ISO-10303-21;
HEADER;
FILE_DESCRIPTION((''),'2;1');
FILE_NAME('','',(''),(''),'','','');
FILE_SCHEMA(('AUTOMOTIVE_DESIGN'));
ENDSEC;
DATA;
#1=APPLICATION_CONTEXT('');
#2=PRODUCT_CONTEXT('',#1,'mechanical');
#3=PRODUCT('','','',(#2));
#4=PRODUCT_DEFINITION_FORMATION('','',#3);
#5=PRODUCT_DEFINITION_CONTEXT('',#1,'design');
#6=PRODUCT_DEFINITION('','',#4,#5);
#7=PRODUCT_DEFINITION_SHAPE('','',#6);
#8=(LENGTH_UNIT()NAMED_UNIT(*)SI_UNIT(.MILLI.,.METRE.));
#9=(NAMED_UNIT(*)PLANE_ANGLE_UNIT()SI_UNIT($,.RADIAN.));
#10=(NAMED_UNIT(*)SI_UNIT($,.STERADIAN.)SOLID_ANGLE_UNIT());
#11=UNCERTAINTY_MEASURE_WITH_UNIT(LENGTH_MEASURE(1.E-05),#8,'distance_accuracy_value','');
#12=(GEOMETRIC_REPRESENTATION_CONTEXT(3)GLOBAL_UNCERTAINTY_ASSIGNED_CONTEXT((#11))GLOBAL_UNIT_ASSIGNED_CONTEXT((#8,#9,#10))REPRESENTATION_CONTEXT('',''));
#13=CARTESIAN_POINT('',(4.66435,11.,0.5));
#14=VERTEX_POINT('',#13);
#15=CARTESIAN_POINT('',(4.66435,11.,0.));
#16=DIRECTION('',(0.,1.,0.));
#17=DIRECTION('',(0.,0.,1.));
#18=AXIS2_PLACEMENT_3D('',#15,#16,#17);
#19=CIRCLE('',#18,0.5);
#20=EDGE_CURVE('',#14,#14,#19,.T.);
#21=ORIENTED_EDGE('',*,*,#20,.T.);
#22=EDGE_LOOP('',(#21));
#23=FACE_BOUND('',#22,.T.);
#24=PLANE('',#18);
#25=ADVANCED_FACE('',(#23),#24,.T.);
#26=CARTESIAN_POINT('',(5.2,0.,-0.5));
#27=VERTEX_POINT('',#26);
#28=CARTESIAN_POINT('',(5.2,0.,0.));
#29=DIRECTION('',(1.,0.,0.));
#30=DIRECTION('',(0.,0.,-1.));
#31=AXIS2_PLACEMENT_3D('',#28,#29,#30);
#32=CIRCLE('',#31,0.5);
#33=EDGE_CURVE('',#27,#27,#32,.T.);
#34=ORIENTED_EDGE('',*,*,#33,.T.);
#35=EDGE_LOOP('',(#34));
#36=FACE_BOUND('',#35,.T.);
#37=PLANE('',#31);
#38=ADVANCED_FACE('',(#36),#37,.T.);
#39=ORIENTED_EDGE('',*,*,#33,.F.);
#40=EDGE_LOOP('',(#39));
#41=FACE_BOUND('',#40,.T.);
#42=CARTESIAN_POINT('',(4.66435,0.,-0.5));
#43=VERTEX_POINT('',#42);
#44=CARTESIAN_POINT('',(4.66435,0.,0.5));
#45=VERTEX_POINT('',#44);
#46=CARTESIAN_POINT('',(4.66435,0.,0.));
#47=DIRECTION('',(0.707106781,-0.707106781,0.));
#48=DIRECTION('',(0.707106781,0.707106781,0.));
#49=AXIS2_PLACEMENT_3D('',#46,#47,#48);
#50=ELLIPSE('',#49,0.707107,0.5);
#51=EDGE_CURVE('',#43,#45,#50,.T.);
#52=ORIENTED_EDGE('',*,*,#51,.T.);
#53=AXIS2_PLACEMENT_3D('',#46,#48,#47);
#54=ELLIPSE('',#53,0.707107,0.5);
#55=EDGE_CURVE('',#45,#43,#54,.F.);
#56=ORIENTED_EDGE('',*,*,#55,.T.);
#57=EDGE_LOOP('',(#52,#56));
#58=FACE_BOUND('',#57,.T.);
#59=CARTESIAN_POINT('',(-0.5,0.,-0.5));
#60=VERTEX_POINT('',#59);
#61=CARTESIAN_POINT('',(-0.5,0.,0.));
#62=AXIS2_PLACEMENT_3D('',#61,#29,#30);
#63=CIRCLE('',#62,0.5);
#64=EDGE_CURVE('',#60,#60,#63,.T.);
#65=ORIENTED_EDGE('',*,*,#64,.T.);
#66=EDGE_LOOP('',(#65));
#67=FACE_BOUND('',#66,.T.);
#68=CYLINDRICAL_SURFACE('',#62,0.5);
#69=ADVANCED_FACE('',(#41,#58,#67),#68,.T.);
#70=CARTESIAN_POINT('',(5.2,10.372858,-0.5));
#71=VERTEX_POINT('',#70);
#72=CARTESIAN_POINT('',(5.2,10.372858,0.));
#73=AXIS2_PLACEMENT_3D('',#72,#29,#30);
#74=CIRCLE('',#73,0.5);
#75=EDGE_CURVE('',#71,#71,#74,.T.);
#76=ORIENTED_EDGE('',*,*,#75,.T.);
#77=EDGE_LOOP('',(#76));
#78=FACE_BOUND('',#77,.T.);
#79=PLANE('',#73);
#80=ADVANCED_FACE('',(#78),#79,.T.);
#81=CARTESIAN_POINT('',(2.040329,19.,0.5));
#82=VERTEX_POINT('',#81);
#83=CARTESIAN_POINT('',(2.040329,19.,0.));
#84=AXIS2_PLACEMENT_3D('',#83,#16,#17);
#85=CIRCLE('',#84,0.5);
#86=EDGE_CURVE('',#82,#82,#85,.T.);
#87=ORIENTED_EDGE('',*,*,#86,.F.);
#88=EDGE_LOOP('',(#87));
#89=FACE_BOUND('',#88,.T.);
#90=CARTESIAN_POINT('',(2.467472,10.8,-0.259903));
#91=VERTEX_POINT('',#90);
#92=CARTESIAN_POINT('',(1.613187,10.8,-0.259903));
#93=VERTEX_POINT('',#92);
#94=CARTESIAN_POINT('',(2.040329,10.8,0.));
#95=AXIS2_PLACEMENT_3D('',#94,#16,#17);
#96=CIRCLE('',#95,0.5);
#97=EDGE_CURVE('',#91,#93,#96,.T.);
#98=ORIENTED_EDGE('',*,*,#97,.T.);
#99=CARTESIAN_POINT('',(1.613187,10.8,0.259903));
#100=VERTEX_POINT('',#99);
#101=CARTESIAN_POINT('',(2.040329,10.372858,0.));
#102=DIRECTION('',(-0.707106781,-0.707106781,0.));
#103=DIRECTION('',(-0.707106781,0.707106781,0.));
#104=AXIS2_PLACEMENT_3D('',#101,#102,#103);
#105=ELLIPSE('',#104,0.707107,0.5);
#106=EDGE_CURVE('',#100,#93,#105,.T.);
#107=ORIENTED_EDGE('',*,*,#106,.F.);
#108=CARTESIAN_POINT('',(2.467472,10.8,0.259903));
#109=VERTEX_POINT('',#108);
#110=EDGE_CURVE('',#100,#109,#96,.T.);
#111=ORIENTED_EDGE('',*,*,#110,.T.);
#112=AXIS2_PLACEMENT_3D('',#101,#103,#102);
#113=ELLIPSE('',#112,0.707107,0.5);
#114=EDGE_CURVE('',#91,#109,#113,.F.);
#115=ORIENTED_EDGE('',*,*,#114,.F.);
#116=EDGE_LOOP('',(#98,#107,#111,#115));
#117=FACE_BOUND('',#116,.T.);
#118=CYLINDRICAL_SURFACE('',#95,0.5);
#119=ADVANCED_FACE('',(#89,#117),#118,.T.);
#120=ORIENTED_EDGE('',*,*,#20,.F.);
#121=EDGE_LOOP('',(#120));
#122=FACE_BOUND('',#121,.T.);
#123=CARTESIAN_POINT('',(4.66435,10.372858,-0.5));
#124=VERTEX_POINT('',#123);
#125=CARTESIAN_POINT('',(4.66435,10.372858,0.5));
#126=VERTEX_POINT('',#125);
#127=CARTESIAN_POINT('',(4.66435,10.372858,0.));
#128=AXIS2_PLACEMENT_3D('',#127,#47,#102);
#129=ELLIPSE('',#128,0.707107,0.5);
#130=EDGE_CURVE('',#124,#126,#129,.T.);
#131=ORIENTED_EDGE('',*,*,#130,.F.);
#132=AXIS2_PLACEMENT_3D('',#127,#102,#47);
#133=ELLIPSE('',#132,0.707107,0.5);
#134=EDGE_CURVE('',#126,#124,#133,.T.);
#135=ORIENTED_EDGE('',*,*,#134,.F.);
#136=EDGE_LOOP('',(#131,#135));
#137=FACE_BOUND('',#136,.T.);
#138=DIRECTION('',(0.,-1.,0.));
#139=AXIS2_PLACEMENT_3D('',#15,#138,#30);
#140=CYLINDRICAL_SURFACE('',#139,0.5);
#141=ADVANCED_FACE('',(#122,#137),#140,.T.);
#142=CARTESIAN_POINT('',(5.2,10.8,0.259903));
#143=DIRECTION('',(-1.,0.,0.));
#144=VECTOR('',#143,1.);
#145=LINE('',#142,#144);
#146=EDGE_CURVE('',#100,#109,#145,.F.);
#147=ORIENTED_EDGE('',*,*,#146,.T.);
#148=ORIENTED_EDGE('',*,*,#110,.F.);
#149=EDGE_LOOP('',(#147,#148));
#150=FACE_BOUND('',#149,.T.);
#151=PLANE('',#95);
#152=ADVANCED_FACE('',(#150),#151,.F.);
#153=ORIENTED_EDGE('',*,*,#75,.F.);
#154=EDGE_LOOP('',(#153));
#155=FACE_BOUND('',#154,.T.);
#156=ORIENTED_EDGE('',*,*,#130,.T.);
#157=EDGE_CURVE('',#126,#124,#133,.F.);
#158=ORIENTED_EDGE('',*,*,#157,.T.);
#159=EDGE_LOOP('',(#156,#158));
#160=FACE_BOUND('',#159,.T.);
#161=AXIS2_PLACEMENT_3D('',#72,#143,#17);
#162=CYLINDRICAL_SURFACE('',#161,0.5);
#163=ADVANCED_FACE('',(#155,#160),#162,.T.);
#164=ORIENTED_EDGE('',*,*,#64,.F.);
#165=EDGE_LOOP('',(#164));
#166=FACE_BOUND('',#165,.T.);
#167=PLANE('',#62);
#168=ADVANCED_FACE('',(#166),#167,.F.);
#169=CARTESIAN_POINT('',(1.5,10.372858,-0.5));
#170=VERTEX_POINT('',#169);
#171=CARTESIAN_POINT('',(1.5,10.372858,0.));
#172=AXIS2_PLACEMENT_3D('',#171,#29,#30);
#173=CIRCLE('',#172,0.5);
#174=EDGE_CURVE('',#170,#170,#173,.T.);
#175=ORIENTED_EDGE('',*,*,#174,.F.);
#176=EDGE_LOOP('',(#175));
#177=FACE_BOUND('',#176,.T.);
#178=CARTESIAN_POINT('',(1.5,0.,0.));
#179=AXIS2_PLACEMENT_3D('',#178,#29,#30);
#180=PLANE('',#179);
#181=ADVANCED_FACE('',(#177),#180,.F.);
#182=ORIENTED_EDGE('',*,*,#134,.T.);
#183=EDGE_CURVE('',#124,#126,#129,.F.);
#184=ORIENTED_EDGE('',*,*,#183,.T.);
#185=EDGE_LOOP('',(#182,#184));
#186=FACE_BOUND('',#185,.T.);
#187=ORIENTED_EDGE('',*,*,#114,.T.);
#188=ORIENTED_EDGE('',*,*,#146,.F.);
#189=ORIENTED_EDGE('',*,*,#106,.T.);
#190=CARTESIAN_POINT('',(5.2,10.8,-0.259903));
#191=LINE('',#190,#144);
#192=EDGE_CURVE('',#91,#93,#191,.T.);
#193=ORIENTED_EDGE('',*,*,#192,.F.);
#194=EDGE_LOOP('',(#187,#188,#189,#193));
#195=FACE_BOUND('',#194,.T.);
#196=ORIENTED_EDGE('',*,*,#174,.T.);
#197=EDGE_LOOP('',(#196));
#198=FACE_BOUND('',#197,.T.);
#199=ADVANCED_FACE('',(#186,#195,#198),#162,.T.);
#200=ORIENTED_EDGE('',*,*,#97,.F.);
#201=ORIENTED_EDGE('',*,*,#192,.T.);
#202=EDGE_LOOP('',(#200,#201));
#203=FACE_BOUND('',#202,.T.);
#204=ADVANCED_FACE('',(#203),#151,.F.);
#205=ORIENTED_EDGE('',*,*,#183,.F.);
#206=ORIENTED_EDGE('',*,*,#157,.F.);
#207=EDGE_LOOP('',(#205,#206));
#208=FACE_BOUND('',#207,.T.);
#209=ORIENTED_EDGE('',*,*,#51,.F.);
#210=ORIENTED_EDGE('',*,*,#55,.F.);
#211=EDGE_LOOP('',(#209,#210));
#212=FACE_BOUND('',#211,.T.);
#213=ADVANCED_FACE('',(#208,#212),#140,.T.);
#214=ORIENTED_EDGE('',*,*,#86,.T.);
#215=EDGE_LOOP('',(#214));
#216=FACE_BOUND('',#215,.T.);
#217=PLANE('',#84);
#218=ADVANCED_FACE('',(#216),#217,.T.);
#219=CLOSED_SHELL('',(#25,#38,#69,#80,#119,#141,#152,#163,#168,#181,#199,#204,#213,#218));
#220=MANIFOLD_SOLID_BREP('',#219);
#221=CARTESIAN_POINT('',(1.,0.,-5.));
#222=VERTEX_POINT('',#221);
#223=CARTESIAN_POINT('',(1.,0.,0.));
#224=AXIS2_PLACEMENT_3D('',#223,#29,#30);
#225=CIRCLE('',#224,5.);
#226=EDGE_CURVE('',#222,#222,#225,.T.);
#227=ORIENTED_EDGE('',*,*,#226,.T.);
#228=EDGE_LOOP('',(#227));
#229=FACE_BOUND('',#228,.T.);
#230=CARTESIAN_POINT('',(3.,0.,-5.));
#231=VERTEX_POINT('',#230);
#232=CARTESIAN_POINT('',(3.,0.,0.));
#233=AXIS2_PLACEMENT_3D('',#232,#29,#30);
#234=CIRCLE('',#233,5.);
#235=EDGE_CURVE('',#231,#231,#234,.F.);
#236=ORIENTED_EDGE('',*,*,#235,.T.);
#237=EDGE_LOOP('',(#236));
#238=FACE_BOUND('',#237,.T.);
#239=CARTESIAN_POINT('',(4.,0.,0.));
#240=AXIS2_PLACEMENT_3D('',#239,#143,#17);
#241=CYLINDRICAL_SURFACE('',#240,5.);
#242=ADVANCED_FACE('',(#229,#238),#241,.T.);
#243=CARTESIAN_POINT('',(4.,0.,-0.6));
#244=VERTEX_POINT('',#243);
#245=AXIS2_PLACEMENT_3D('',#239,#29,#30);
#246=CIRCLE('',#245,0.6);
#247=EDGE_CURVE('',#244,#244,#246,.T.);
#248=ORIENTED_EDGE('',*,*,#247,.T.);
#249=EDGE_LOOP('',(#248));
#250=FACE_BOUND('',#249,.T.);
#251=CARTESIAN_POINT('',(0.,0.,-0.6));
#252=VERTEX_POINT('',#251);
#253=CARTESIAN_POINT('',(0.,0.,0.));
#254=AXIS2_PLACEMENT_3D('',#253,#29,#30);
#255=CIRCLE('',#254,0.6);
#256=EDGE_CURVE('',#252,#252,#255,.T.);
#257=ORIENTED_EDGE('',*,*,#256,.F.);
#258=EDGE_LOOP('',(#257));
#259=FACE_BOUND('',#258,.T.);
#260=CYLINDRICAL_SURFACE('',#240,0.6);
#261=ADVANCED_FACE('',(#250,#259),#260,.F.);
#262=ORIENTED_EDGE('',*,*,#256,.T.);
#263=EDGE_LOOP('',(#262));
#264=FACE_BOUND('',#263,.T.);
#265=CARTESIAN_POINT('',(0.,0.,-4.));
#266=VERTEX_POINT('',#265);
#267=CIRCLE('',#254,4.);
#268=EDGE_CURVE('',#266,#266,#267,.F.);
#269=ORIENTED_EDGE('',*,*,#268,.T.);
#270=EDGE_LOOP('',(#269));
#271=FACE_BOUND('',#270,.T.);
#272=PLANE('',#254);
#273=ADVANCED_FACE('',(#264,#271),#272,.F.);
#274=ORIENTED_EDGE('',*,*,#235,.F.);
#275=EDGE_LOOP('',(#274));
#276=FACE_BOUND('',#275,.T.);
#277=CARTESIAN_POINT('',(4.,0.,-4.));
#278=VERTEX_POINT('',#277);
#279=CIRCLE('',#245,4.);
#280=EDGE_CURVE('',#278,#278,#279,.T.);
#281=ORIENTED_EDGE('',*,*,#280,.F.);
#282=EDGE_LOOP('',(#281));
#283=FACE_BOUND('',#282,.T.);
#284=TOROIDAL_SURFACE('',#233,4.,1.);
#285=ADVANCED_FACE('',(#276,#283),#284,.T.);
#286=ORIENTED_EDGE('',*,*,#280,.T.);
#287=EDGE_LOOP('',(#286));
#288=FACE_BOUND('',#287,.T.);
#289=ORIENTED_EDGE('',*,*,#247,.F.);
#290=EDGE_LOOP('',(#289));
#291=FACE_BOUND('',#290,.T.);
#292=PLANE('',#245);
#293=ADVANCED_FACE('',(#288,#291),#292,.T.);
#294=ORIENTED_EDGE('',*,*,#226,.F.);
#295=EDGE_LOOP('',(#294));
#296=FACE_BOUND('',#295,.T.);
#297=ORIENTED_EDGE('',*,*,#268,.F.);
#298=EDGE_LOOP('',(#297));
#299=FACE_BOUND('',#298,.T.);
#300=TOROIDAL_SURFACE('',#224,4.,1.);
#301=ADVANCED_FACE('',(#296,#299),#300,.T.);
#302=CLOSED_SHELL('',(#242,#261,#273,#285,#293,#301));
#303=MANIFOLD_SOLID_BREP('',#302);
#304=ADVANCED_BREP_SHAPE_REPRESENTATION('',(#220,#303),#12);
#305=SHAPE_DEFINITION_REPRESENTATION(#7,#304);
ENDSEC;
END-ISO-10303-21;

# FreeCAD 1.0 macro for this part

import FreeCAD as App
import Part
import Sketcher
from FreeCAD import Vector


def edges_at(feature, points):
    """Names of the edges that pass closest to the given points."""
    edges = feature.Shape.Edges
    near = lambda p: min(range(len(edges)), key=lambda i: edges[i].distToShape(Part.Vertex(*p))[0])
    return sorted({f"Edge{near(p) + 1}" for p in points})


def add_polygon(sketch, points):
    """Adds a closed chain of lines whose ends are joined by coincident constraints."""
    first, n = sketch.GeometryCount, len(points)
    for a, b in zip(points, points[1:] + points[:1]):
        sketch.addGeometry(Part.LineSegment(App.Vector(*a, 0), App.Vector(*b, 0)), False)
    for i in range(n):
        sketch.addConstraint(Sketcher.Constraint("Coincident", first + i, 2, first + (i + 1) % n, 1))

doc = App.newDocument("Part")
params = doc.addObject("Spreadsheet::Sheet", "Params")
for row, (alias, value) in enumerate([
    ("sketch1_diameter", "10 mm"),
    ("sketch1_diameter2", "1.2 mm"),
    ("pad1_length", "4 mm"),
    ("fillet_radius", "1 mm"),
    ("fillet2_radius", "1 mm"),
    ("sketch2_diameter", "1 mm"),
    ("pad2_length", "5.2 mm"),
    ("pad2_length2", "0.5 mm"),
    ("sketch3_diameter", "1 mm"),
    ("pad3_length", "11 mm"),
    ("sketch4_diameter", "1 mm"),
    ("pad4_length", "5.2 mm"),
    ("sketch5_diameter", "1 mm"),
    ("pad5_length", "3 mm"),
    ("pad5_length2", "5.2 mm"),
    ("pocket1_length", "1.5 mm"),
], start=1):
    params.set(f"A{row}", alias)
    params.set(f"B{row}", "=" + value)
    params.setAlias(f"B{row}", alias)

body = doc.addObject("PartDesign::Body", "Body")

# Sketch on YZ plane
sketch1 = body.newObject("Sketcher::SketchObject", "Sketch")
sketch1.AttachmentSupport = (doc.getObject("YZ_Plane"), [""])
sketch1.MapMode = "FlatFace"
sketch1.addGeometry([
    Part.Circle(Vector(0, 0, 0), Vector(0, 0, 1), 5),
    Part.Circle(Vector(0, 0, 0), Vector(0, 0, 1), 0.6),
], False)
sketch1.addConstraint([
    Sketcher.Constraint("Coincident", 0, 3, -1, 1),
    Sketcher.Constraint("Coincident", 1, 3, -1, 1),
    Sketcher.Constraint("Diameter", 0, 10.0),
    Sketcher.Constraint("Diameter", 1, 1.2),
])
sketch1.setExpression("Constraints[2]", "Params.sketch1_diameter")
sketch1.setExpression("Constraints[3]", "Params.sketch1_diameter2")
pad1 = body.newObject("PartDesign::Pad", "Pad")
pad1.Profile = sketch1
pad1.setExpression("Length", "Params.pad1_length")
doc.recompute()

fillet = body.newObject("PartDesign::Fillet", "Fillet")
fillet.Base = (pad1, edges_at(pad1, [(0, 0, 5)]))
fillet.setExpression("Radius", "Params.fillet_radius")
doc.recompute()

fillet2 = body.newObject("PartDesign::Fillet", "Fillet001")
fillet2.Base = (fillet, edges_at(fillet, [(4, 0, 5)]))
fillet2.setExpression("Radius", "Params.fillet2_radius")
body2 = doc.addObject("PartDesign::Body", "Body001")

# Sketch on YZ plane
sketch2 = body2.newObject("Sketcher::SketchObject", "Sketch001")
sketch2.AttachmentSupport = (doc.getObject("YZ_Plane001"), [""])
sketch2.MapMode = "FlatFace"
sketch2.addGeometry(Part.Circle(Vector(0, 0, 0), Vector(0, 0, 1), 0.5), False)
sketch2.addConstraint([
    Sketcher.Constraint("Coincident", 0, 3, -1, 1),
    Sketcher.Constraint("Diameter", 0, 1.0),
])
sketch2.setExpression("Constraints[1]", "Params.sketch2_diameter")
pad2 = body2.newObject("PartDesign::Pad", "Pad001")
pad2.Profile = sketch2
pad2.Type = "TwoLengths"
pad2.setExpression("Length", "Params.pad2_length")
pad2.setExpression("Length2", "Params.pad2_length2")

# Sketch on XZ plane
sketch3 = body2.newObject("Sketcher::SketchObject", "Sketch002")
sketch3.AttachmentSupport = (doc.getObject("XZ_Plane001"), [""])
sketch3.MapMode = "FlatFace"
sketch3.addGeometry(Part.Circle(Vector(4.7, 0, 0), Vector(0, 0, 1), 0.5), False)
sketch3.addConstraint([
    Sketcher.Constraint("PointOnObject", 0, 3, -1),
    Sketcher.Constraint("Diameter", 0, 1.0),
    Sketcher.Constraint("DistanceX", -1, 1, 0, 3, 4.66435),
])
sketch3.setExpression("Constraints[1]", "Params.sketch3_diameter")
pad3 = body2.newObject("PartDesign::Pad", "Pad002")
pad3.Profile = sketch3
pad3.setExpression("Length", "Params.pad3_length")
pad3.Reversed = True

# Sketch on YZ plane
sketch4 = body2.newObject("Sketcher::SketchObject", "Sketch003")
sketch4.AttachmentSupport = (doc.getObject("YZ_Plane001"), [""])
sketch4.MapMode = "FlatFace"
sketch4.addGeometry(Part.Circle(Vector(10.4, 0, 0), Vector(0, 0, 1), 0.5), False)
sketch4.addConstraint([
    Sketcher.Constraint("PointOnObject", 0, 3, -1),
    Sketcher.Constraint("Diameter", 0, 1.0),
    Sketcher.Constraint("DistanceX", -1, 1, 0, 3, 10.372858),
])
sketch4.setExpression("Constraints[1]", "Params.sketch4_diameter")
pad4 = body2.newObject("PartDesign::Pad", "Pad003")
pad4.Profile = sketch4
pad4.setExpression("Length", "Params.pad4_length")

# Sketch on XZ plane
sketch5 = body2.newObject("Sketcher::SketchObject", "Sketch004")
sketch5.AttachmentSupport = (doc.getObject("XZ_Plane001"), [""])
sketch5.MapMode = "FlatFace"
sketch5.AttachmentOffset = App.Placement(Vector(0, 0, -16), App.Rotation())
sketch5.addGeometry(Part.Circle(Vector(2, 0, 0), Vector(0, 0, 1), 0.5), False)
sketch5.addConstraint([
    Sketcher.Constraint("PointOnObject", 0, 3, -1),
    Sketcher.Constraint("Diameter", 0, 1.0),
    Sketcher.Constraint("DistanceX", -1, 1, 0, 3, 2.040329),
])
sketch5.setExpression("Constraints[1]", "Params.sketch5_diameter")
pad5 = body2.newObject("PartDesign::Pad", "Pad004")
pad5.Profile = sketch5
pad5.Type = "TwoLengths"
pad5.setExpression("Length", "Params.pad5_length")
pad5.setExpression("Length2", "Params.pad5_length2")
pad5.Reversed = True

# Sketch on YZ plane
sketch6 = body2.newObject("Sketcher::SketchObject", "Sketch005")
sketch6.AttachmentSupport = (doc.getObject("YZ_Plane001"), [""])
sketch6.MapMode = "FlatFace"
add_polygon(sketch6, [(11.9, -5.5), (8, -5.5), (8, 2.3), (11.9, 2.3)])  # lines 0-3
sketch6.addConstraint([
    Sketcher.Constraint("Horizontal", 0),
    Sketcher.Constraint("Vertical", 1),
    Sketcher.Constraint("Horizontal", 2),
    Sketcher.Constraint("Vertical", 3),
    Sketcher.Constraint("DistanceX", 0, 2, 0, 1, 3.897197),
    Sketcher.Constraint("DistanceY", 1, 1, 1, 2, 7.726433),
    Sketcher.Constraint("DistanceY", 0, 2, -1, 1, 5.464139),
    Sketcher.Constraint("DistanceX", -1, 1, 2, 2, 11.89205),
])
pocket1 = body2.newObject("PartDesign::Pocket", "Pocket")
pocket1.Profile = sketch6
pocket1.setExpression("Length", "Params.pocket1_length")
pocket1.Reversed = True

doc.recompute()
